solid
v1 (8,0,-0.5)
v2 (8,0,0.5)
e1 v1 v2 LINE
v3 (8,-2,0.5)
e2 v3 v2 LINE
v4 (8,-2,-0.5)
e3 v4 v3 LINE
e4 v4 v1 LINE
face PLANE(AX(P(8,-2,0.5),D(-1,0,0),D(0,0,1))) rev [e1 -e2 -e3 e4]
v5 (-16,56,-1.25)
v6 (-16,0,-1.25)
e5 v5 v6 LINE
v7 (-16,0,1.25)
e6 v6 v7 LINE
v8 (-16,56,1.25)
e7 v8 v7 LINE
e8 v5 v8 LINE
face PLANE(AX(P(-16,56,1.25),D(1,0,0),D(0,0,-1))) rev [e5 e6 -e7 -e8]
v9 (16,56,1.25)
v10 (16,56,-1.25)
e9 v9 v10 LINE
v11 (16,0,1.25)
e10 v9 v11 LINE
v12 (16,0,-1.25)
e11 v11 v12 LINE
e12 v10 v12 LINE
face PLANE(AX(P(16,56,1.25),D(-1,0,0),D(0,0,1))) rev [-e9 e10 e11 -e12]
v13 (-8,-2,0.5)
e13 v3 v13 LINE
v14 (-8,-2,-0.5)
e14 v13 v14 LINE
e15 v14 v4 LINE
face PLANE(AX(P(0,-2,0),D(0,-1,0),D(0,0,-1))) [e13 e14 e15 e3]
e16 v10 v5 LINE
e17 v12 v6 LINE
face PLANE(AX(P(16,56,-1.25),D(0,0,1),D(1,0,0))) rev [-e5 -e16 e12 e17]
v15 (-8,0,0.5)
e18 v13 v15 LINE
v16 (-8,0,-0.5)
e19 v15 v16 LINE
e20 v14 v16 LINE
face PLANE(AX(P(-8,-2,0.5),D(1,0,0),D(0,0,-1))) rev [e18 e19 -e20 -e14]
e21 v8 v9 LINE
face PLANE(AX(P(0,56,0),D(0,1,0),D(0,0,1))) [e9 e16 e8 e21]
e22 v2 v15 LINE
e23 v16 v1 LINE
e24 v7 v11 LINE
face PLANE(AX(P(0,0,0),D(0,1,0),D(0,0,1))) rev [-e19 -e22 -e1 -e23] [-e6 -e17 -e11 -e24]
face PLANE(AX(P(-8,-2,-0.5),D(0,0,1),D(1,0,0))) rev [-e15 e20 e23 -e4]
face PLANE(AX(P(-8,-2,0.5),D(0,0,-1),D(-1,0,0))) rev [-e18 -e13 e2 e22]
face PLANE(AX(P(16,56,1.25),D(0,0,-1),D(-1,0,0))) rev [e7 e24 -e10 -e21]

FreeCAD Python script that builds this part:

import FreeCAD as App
import Part
import Sketcher
from FreeCAD import Vector
Q = App.Units.Quantity


def add_polygon(sketch, points):
    """Adds a closed chain of lines whose ends are joined by coincident constraints."""
    first, n = sketch.GeometryCount, len(points)
    for a, b in zip(points, points[1:] + points[:1]):
        sketch.addGeometry(Part.LineSegment(App.Vector(*a, 0), App.Vector(*b, 0)), False)
    for i in range(n):
        sketch.addConstraint(Sketcher.Constraint("Coincident", first + i, 2, first + (i + 1) % n, 1))

doc = App.newDocument("Part")
params = doc.addObject("Spreadsheet::Sheet", "Params")
for row, (alias, value) in enumerate([
    ("sketch1_width", "32 mm"),
    ("sketch1_height", "2.5 mm"),
    ("pad1_length", "56 mm"),
    ("sketch2_width", "16 mm"),
    ("sketch2_height", "1 mm"),
    ("pad2_length", "2 mm"),
], start=1):
    params.set(f"A{row}", alias)
    params.set(f"B{row}", "=" + value)
    params.setAlias(f"B{row}", alias)

body = doc.addObject("PartDesign::Body", "Body")

# Sketch on XZ plane
sketch1 = body.newObject("Sketcher::SketchObject", "Sketch")
sketch1.AttachmentSupport = (doc.getObject("XZ_Plane"), [""])
sketch1.MapMode = "FlatFace"
add_polygon(sketch1, [(-16, -1.2), (-16, 1.2), (16, 1.2), (16, -1.2)])  # lines 0-3
sketch1.addConstraint([
    Sketcher.Constraint("Vertical", 0),
    Sketcher.Constraint("Horizontal", 1),
    Sketcher.Constraint("Vertical", 2),
    Sketcher.Constraint("Horizontal", 3),
    Sketcher.Constraint("Symmetric", 0, 2, 2, 2, -1, 1),
    Sketcher.Constraint("DistanceX", 1, 1, 1, 2, Q("32 mm")),
    Sketcher.Constraint("DistanceY", 0, 1, 0, 2, Q("2.5 mm")),
])
sketch1.setExpression("Constraints[9]", "Params.sketch1_width")
sketch1.setExpression("Constraints[10]", "Params.sketch1_height")
pad1 = body.newObject("PartDesign::Pad", "Pad")
pad1.Profile = sketch1
pad1.setExpression("Length", "Params.pad1_length")
pad1.Reversed = True

# Sketch on XZ plane
sketch2 = body.newObject("Sketcher::SketchObject", "Sketch001")
sketch2.AttachmentSupport = (doc.getObject("XZ_Plane"), [""])
sketch2.MapMode = "FlatFace"
add_polygon(sketch2, [(-8, 0.5), (-8, -0.5), (8, -0.5), (8, 0.5)])  # lines 0-3
sketch2.addConstraint([
    Sketcher.Constraint("Vertical", 0),
    Sketcher.Constraint("Horizontal", 1),
    Sketcher.Constraint("Vertical", 2),
    Sketcher.Constraint("Horizontal", 3),
    Sketcher.Constraint("Symmetric", 0, 2, 2, 2, -1, 1),
    Sketcher.Constraint("DistanceX", 1, 1, 1, 2, Q("16 mm")),
    Sketcher.Constraint("DistanceY", 0, 2, 0, 1, Q("1 mm")),
])
sketch2.setExpression("Constraints[9]", "Params.sketch2_width")
sketch2.setExpression("Constraints[10]", "Params.sketch2_height")
pad2 = body.newObject("PartDesign::Pad", "Pad001")
pad2.Profile = sketch2
pad2.setExpression("Length", "Params.pad2_length")

doc.recompute()
